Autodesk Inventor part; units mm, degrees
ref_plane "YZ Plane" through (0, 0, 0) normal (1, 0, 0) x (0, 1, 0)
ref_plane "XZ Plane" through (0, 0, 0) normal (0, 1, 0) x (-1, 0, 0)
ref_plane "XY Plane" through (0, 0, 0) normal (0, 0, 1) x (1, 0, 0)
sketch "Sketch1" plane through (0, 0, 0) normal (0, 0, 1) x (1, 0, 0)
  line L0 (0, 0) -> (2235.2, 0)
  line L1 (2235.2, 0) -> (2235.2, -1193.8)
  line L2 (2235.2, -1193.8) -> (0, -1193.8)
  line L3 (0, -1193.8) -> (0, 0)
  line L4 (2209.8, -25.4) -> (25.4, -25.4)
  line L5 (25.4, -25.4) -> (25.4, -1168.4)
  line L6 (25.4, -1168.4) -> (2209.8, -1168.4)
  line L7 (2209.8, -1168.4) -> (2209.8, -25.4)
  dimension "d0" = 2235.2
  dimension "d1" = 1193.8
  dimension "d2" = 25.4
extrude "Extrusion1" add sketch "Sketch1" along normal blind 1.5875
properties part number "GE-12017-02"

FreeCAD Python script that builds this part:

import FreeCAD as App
import Part
import Sketcher
Q = App.Units.Quantity


def add_polygon(sketch, points):
    """Adds a closed chain of lines whose ends are joined by coincident constraints."""
    first, n = sketch.GeometryCount, len(points)
    for a, b in zip(points, points[1:] + points[:1]):
        sketch.addGeometry(Part.LineSegment(App.Vector(*a, 0), App.Vector(*b, 0)), False)
    for i in range(n):
        sketch.addConstraint(Sketcher.Constraint("Coincident", first + i, 2, first + (i + 1) % n, 1))

doc = App.newDocument("Part")
body = doc.addObject("PartDesign::Body", "Body")

# Sketch on XY plane
sketch1 = doc.addObject("Sketcher::SketchObject", "Sketch")
body.addObject(sketch1)
sketch1.AttachmentSupport = (doc.XY_Plane, [""])
sketch1.MapMode = "FlatFace"
add_polygon(sketch1, [(2235, 0), (0, 0), (0, -1194), (2235, -1194)])  # lines 0-3
add_polygon(sketch1, [(25, -25), (2210, -25), (2210, -1168), (25, -1168)])  # lines 4-7
sketch1.addConstraint([
    Sketcher.Constraint("Horizontal", 0),
    Sketcher.Constraint("Vertical", 1),
    Sketcher.Constraint("Horizontal", 2),
    Sketcher.Constraint("Vertical", 3),
    Sketcher.Constraint("Horizontal", 4),
    Sketcher.Constraint("Vertical", 5),
    Sketcher.Constraint("Horizontal", 6),
    Sketcher.Constraint("Vertical", 7),
    Sketcher.Constraint("Coincident", 0, 2, -1, 1),
    Sketcher.Constraint("DistanceX", 0, 2, 0, 1, Q("88 in")),
    Sketcher.Constraint("DistanceY", 1, 2, 1, 1, Q("47 in")),
    Sketcher.Constraint("DistanceY", 4, 2, -1, 1, Q("1 in")),
    Sketcher.Constraint("DistanceX", -1, 1, 6, 2, Q("1 in")),
    Sketcher.Constraint("DistanceX", 4, 2, 3, 2, Q("1 in")),
    Sketcher.Constraint("DistanceY", 2, 2, 5, 2, Q("1 in")),
])
pad1 = doc.addObject("PartDesign::Pad", "Pad")
body.addObject(pad1)
pad1.Profile = sketch1
pad1.Length = Q("0.0625 in")

doc.recompute()
